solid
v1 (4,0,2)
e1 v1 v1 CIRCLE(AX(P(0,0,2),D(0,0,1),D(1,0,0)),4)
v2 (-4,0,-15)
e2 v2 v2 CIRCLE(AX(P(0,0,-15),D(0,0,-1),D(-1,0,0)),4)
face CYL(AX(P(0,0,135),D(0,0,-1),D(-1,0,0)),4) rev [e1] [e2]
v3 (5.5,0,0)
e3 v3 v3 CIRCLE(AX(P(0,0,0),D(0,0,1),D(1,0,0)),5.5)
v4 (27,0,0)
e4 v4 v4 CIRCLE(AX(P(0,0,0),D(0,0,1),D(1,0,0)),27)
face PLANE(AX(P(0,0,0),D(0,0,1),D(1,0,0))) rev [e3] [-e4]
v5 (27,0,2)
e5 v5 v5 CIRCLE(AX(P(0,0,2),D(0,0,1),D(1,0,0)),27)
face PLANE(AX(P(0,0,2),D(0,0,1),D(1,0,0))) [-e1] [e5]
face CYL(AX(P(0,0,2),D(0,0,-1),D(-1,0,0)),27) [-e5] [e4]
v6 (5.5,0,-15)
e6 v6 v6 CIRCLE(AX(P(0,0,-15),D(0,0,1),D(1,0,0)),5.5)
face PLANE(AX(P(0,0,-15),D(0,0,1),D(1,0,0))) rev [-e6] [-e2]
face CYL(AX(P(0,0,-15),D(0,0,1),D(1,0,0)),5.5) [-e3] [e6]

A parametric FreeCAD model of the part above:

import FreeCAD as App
import Part
import Sketcher
from FreeCAD import Vector

doc = App.newDocument("Part")
body = doc.addObject("PartDesign::Body", "Body")

sketch1 = body.newObject("Sketcher::SketchObject", "Sketch")
sketch1.AttachmentSupport = (doc.getObject("XY_Plane"), [""])
sketch1.MapMode = "FlatFace"
sketch1.addGeometry(Part.Circle(Vector(0, 0, 0), Vector(0, 0, 1), 27), False)
sketch1.addConstraint(Sketcher.Constraint("Coincident", 0, 3, -1, 1))
sketch1.addConstraint(Sketcher.Constraint("Diameter", 0, 54.0))
pad1 = body.newObject("PartDesign::Pad", "Pad")
pad1.Profile = sketch1
pad1.Length = 2

sketch2 = body.newObject("Sketcher::SketchObject", "Sketch001")
sketch2.AttachmentSupport = (doc.getObject("XY_Plane"), [""])
sketch2.MapMode = "FlatFace"
sketch2.addGeometry(Part.Circle(Vector(0, 0, 0), Vector(0, 0, 1), 6), False)
sketch2.addConstraint(Sketcher.Constraint("Coincident", 0, 3, -1, 1))
sketch2.addConstraint(Sketcher.Constraint("Diameter", 0, 11.0))
pad2 = body.newObject("PartDesign::Pad", "Pad001")
pad2.Profile = sketch2
pad2.Length = 15
pad2.Reversed = True

sketch3 = body.newObject("Sketcher::SketchObject", "Sketch002")
sketch3.AttachmentSupport = (doc.getObject("XY_Plane"), [""])
sketch3.MapMode = "FlatFace"
sketch3.AttachmentOffset = App.Placement(Vector(0, 0, -15), App.Rotation())
sketch3.addGeometry(Part.Circle(Vector(0, 0, 0), Vector(0, 0, 1), 4), False)
sketch3.addConstraint(Sketcher.Constraint("Coincident", 0, 3, -1, 1))
sketch3.addConstraint(Sketcher.Constraint("Diameter", 0, 8.0))
pocket1 = body.newObject("PartDesign::Pocket", "Pocket")
pocket1.Profile = sketch3
pocket1.Length = 150
pocket1.Reversed = True

doc.recompute()
